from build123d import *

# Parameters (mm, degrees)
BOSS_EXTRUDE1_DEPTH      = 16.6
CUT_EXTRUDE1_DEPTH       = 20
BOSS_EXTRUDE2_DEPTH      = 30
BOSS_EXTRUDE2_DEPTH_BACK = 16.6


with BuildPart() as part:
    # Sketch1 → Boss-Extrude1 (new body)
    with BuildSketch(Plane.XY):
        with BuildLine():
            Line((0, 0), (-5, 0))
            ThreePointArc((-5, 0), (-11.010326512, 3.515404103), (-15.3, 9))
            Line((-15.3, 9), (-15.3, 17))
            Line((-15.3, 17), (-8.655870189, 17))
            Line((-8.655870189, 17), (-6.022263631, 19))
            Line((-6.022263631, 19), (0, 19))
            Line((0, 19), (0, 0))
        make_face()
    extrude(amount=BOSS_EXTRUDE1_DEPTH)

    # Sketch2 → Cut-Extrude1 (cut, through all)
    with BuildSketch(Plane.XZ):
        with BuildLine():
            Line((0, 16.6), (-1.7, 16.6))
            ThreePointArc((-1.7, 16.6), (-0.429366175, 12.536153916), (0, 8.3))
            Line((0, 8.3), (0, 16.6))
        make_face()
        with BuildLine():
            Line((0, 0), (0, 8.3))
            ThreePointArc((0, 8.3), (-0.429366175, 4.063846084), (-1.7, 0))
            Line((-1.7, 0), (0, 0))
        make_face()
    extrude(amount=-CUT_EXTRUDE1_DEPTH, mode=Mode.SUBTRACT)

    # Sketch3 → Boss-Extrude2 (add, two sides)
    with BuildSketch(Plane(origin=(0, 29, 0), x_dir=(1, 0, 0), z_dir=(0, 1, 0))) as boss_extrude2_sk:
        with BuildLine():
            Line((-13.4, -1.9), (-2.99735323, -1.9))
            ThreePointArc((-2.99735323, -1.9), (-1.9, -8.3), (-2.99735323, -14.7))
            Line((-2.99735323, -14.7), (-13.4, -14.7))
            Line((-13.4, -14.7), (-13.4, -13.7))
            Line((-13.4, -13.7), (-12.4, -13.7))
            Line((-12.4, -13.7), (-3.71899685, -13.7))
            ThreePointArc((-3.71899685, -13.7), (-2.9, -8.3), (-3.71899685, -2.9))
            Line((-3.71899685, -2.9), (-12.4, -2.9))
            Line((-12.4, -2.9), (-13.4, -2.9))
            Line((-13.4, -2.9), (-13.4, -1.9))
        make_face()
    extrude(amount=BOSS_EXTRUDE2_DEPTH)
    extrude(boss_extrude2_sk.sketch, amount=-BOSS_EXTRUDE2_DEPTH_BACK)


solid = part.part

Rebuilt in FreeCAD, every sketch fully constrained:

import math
import FreeCAD as App
import Part
import Sketcher

V = App.Vector
Q = App.Units.Quantity

doc = App.newDocument("Part")
body = doc.addObject("PartDesign::Body", "Body")

sketch1 = doc.addObject("Sketcher::SketchObject", "Sketch")
body.addObject(sketch1)
sketch1.AttachmentSupport = (doc.XY_Plane, [""])
sketch1.MapMode = "FlatFace"
sketch1.addGeometry([
    Part.LineSegment(V(-5, 0, 0), V(0, 0, 0)),
    Part.LineSegment(V(0, 0, 0), V(0, 19, 0)),
    Part.LineSegment(V(0, 19, 0), V(-6, 19, 0)),
    Part.LineSegment(V(-6, 19, 0), V(-8.7, 17, 0)),
    Part.LineSegment(V(-8.7, 17, 0), V(-15.3, 17, 0)),
    Part.LineSegment(V(-15.3, 17, 0), V(-15.3, 9, 0)),
    Part.ArcOfCircle(Part.Circle(V(1.2, 17.5, 0), V(0, 0, 1), 18.5), math.radians(-153), math.radians(-109)),
], False)
sketch1.addConstraint([
    Sketcher.Constraint("Coincident", 0, 2, 1, 1),
    Sketcher.Constraint("Coincident", 1, 2, 2, 1),
    Sketcher.Constraint("Coincident", 2, 2, 3, 1),
    Sketcher.Constraint("Coincident", 3, 2, 4, 1),
    Sketcher.Constraint("Coincident", 4, 2, 5, 1),
    Sketcher.Constraint("Coincident", 5, 2, 6, 1),
    Sketcher.Constraint("Coincident", 6, 2, 0, 1),
    Sketcher.Constraint("Horizontal", 0),
    Sketcher.Constraint("Vertical", 1),
    Sketcher.Constraint("Horizontal", 2),
    Sketcher.Constraint("Horizontal", 4),
    Sketcher.Constraint("Vertical", 5),
    Sketcher.Constraint("Coincident", 0, 2, -1, 1),
    Sketcher.Constraint("DistanceX", 0, 1, 0, 2, Q("5 mm")),
    Sketcher.Constraint("DistanceY", 1, 1, 1, 2, Q("19 mm")),
    Sketcher.Constraint("DistanceY", 5, 2, 5, 1, Q("8 mm")),
    Sketcher.Constraint("DistanceY", -1, 1, 3, 2, Q("17 mm")),
    Sketcher.Constraint("DistanceX", 4, 2, -1, 1, Q("15.3 mm")),
    Sketcher.Constraint("Radius", 6, Q("18.539809 mm")),
    Sketcher.Constraint("DistanceX", 4, 2, 4, 1, Q("6.64413 mm")),
    Sketcher.Constraint("DistanceX", 2, 2, 2, 1, Q("6.022264 mm")),
])
pad1 = doc.addObject("PartDesign::Pad", "Pad")
body.addObject(pad1)
pad1.Profile = sketch1
pad1.Length = 16.6

sketch2 = doc.addObject("Sketcher::SketchObject", "Sketch001")
body.addObject(sketch2)
sketch2.AttachmentSupport = (doc.XZ_Plane, [""])
sketch2.MapMode = "FlatFace"
sketch2.addGeometry([
    Part.LineSegment(V(0, 16.6, 0), V(-1.7, 16.6, 0)),
    Part.ArcOfCircle(Part.Circle(V(-21.1, 8.3, 0), V(0, 0, 1), 21.1), math.radians(0), math.radians(23)),
    Part.LineSegment(V(0, 8.3, 0), V(0, 16.6, 0)),
    Part.LineSegment(V(0, 0, 0), V(0, 8.3, 0)),
    Part.ArcOfCircle(Part.Circle(V(-21.1, 8.3, 0), V(0, 0, 1), 21.1), math.radians(-23), math.radians(0)),
    Part.LineSegment(V(-1.7, 0, 0), V(0, 0, 0)),
], False)
sketch2.addConstraint([
    Sketcher.Constraint("Coincident", 0, 2, 1, 2),
    Sketcher.Constraint("Tangent", 1, 1, 2, 1),
    Sketcher.Constraint("Coincident", 2, 2, 0, 1),
    Sketcher.Constraint("Tangent", 3, 2, 4, 2),
    Sketcher.Constraint("Coincident", 4, 1, 5, 1),
    Sketcher.Constraint("Coincident", 5, 2, 3, 1),
    Sketcher.Constraint("Horizontal", 0),
    Sketcher.Constraint("Vertical", 2),
    Sketcher.Constraint("Vertical", 3),
    Sketcher.Constraint("Horizontal", 5),
    Sketcher.Constraint("Coincident", 5, 2, -1, 1),
    Sketcher.Constraint("Coincident", 4, 3, 1, 3),
    Sketcher.Constraint("Equal", 1, 4),
    Sketcher.Constraint("Vertical", 0, 2, 4, 1),
    Sketcher.Constraint("DistanceX", 0, 2, 0, 1, Q("1.7 mm")),
    Sketcher.Constraint("DistanceY", 2, 1, 2, 2, Q("8.3 mm")),
])
pocket1 = doc.addObject("PartDesign::Pocket", "Pocket")
body.addObject(pocket1)
pocket1.Profile = sketch2
pocket1.Type = "ThroughAll"

sketch3 = doc.addObject("Sketcher::SketchObject", "Sketch002")
body.addObject(sketch3)
sketch3.AttachmentSupport = (doc.XZ_Plane, [""])
sketch3.MapMode = "FlatFace"
sketch3.AttachmentOffset = App.Placement(V(0, 0, -29), App.Rotation())
sketch3.addGeometry([
    Part.LineSegment(V(-3, 1.9, 0), V(-13.4, 1.9, 0)),
    Part.LineSegment(V(-13.4, 1.9, 0), V(-13.4, 2.9, 0)),
    Part.LineSegment(V(-13.4, 2.9, 0), V(-3.7, 2.9, 0)),
    Part.ArcOfCircle(Part.Circle(V(-21.1, 8.3, 0), V(0, 0, 1), 18.2), math.radians(-17), math.radians(17)),
    Part.LineSegment(V(-3.7, 13.7, 0), V(-13.4, 13.7, 0)),
    Part.LineSegment(V(-13.4, 13.7, 0), V(-13.4, 14.7, 0)),
    Part.LineSegment(V(-13.4, 14.7, 0), V(-3, 14.7, 0)),
    Part.ArcOfCircle(Part.Circle(V(-21.1, 8.3, 0), V(0, 0, 1), 19.2), math.radians(-19), math.radians(19)),
], False)
sketch3.addConstraint([
    Sketcher.Constraint("Coincident", 0, 2, 1, 1),
    Sketcher.Constraint("Coincident", 1, 2, 2, 1),
    Sketcher.Constraint("Coincident", 2, 2, 3, 1),
    Sketcher.Constraint("Coincident", 3, 2, 4, 1),
    Sketcher.Constraint("Coincident", 4, 2, 5, 1),
    Sketcher.Constraint("Coincident", 5, 2, 6, 1),
    Sketcher.Constraint("Coincident", 6, 2, 7, 2),
    Sketcher.Constraint("Coincident", 7, 1, 0, 1),
    Sketcher.Constraint("Horizontal", 0),
    Sketcher.Constraint("Vertical", 1),
    Sketcher.Constraint("Horizontal", 2),
    Sketcher.Constraint("Horizontal", 4),
    Sketcher.Constraint("Vertical", 5),
    Sketcher.Constraint("Horizontal", 6),
    Sketcher.Constraint("Coincident", 7, 3, 3, 3),
    Sketcher.Constraint("Vertical", 2, 2, 3, 2),
    Sketcher.Constraint("Vertical", 1, 2, 4, 2),
    Sketcher.Constraint("Vertical", 6, 2, 7, 1),
    Sketcher.Constraint("DistanceY", 1, 1, 1, 2, Q("1 mm")),
    Sketcher.Constraint("DistanceY", -1, 1, 3, 3, Q("8.3 mm")),
    Sketcher.Constraint("DistanceX", 0, 2, -1, 1, Q("13.4 mm")),
    Sketcher.Constraint("DistanceY", -1, 1, 0, 2, Q("1.9 mm")),
    Sketcher.Constraint("Radius", 3, Q("18.211765 mm")),
    Sketcher.Constraint("Radius", 7, Q("19.211765 mm")),
    Sketcher.Constraint("DistanceX", 0, 2, 0, 1, Q("10.402647 mm")),
])
pad2 = doc.addObject("PartDesign::Pad", "Pad001")
body.addObject(pad2)
pad2.Profile = sketch3
pad2.Type = "TwoLengths"
pad2.Length = 30
pad2.Length2 = 16.6
pad2.Reversed = True

doc.recompute()
